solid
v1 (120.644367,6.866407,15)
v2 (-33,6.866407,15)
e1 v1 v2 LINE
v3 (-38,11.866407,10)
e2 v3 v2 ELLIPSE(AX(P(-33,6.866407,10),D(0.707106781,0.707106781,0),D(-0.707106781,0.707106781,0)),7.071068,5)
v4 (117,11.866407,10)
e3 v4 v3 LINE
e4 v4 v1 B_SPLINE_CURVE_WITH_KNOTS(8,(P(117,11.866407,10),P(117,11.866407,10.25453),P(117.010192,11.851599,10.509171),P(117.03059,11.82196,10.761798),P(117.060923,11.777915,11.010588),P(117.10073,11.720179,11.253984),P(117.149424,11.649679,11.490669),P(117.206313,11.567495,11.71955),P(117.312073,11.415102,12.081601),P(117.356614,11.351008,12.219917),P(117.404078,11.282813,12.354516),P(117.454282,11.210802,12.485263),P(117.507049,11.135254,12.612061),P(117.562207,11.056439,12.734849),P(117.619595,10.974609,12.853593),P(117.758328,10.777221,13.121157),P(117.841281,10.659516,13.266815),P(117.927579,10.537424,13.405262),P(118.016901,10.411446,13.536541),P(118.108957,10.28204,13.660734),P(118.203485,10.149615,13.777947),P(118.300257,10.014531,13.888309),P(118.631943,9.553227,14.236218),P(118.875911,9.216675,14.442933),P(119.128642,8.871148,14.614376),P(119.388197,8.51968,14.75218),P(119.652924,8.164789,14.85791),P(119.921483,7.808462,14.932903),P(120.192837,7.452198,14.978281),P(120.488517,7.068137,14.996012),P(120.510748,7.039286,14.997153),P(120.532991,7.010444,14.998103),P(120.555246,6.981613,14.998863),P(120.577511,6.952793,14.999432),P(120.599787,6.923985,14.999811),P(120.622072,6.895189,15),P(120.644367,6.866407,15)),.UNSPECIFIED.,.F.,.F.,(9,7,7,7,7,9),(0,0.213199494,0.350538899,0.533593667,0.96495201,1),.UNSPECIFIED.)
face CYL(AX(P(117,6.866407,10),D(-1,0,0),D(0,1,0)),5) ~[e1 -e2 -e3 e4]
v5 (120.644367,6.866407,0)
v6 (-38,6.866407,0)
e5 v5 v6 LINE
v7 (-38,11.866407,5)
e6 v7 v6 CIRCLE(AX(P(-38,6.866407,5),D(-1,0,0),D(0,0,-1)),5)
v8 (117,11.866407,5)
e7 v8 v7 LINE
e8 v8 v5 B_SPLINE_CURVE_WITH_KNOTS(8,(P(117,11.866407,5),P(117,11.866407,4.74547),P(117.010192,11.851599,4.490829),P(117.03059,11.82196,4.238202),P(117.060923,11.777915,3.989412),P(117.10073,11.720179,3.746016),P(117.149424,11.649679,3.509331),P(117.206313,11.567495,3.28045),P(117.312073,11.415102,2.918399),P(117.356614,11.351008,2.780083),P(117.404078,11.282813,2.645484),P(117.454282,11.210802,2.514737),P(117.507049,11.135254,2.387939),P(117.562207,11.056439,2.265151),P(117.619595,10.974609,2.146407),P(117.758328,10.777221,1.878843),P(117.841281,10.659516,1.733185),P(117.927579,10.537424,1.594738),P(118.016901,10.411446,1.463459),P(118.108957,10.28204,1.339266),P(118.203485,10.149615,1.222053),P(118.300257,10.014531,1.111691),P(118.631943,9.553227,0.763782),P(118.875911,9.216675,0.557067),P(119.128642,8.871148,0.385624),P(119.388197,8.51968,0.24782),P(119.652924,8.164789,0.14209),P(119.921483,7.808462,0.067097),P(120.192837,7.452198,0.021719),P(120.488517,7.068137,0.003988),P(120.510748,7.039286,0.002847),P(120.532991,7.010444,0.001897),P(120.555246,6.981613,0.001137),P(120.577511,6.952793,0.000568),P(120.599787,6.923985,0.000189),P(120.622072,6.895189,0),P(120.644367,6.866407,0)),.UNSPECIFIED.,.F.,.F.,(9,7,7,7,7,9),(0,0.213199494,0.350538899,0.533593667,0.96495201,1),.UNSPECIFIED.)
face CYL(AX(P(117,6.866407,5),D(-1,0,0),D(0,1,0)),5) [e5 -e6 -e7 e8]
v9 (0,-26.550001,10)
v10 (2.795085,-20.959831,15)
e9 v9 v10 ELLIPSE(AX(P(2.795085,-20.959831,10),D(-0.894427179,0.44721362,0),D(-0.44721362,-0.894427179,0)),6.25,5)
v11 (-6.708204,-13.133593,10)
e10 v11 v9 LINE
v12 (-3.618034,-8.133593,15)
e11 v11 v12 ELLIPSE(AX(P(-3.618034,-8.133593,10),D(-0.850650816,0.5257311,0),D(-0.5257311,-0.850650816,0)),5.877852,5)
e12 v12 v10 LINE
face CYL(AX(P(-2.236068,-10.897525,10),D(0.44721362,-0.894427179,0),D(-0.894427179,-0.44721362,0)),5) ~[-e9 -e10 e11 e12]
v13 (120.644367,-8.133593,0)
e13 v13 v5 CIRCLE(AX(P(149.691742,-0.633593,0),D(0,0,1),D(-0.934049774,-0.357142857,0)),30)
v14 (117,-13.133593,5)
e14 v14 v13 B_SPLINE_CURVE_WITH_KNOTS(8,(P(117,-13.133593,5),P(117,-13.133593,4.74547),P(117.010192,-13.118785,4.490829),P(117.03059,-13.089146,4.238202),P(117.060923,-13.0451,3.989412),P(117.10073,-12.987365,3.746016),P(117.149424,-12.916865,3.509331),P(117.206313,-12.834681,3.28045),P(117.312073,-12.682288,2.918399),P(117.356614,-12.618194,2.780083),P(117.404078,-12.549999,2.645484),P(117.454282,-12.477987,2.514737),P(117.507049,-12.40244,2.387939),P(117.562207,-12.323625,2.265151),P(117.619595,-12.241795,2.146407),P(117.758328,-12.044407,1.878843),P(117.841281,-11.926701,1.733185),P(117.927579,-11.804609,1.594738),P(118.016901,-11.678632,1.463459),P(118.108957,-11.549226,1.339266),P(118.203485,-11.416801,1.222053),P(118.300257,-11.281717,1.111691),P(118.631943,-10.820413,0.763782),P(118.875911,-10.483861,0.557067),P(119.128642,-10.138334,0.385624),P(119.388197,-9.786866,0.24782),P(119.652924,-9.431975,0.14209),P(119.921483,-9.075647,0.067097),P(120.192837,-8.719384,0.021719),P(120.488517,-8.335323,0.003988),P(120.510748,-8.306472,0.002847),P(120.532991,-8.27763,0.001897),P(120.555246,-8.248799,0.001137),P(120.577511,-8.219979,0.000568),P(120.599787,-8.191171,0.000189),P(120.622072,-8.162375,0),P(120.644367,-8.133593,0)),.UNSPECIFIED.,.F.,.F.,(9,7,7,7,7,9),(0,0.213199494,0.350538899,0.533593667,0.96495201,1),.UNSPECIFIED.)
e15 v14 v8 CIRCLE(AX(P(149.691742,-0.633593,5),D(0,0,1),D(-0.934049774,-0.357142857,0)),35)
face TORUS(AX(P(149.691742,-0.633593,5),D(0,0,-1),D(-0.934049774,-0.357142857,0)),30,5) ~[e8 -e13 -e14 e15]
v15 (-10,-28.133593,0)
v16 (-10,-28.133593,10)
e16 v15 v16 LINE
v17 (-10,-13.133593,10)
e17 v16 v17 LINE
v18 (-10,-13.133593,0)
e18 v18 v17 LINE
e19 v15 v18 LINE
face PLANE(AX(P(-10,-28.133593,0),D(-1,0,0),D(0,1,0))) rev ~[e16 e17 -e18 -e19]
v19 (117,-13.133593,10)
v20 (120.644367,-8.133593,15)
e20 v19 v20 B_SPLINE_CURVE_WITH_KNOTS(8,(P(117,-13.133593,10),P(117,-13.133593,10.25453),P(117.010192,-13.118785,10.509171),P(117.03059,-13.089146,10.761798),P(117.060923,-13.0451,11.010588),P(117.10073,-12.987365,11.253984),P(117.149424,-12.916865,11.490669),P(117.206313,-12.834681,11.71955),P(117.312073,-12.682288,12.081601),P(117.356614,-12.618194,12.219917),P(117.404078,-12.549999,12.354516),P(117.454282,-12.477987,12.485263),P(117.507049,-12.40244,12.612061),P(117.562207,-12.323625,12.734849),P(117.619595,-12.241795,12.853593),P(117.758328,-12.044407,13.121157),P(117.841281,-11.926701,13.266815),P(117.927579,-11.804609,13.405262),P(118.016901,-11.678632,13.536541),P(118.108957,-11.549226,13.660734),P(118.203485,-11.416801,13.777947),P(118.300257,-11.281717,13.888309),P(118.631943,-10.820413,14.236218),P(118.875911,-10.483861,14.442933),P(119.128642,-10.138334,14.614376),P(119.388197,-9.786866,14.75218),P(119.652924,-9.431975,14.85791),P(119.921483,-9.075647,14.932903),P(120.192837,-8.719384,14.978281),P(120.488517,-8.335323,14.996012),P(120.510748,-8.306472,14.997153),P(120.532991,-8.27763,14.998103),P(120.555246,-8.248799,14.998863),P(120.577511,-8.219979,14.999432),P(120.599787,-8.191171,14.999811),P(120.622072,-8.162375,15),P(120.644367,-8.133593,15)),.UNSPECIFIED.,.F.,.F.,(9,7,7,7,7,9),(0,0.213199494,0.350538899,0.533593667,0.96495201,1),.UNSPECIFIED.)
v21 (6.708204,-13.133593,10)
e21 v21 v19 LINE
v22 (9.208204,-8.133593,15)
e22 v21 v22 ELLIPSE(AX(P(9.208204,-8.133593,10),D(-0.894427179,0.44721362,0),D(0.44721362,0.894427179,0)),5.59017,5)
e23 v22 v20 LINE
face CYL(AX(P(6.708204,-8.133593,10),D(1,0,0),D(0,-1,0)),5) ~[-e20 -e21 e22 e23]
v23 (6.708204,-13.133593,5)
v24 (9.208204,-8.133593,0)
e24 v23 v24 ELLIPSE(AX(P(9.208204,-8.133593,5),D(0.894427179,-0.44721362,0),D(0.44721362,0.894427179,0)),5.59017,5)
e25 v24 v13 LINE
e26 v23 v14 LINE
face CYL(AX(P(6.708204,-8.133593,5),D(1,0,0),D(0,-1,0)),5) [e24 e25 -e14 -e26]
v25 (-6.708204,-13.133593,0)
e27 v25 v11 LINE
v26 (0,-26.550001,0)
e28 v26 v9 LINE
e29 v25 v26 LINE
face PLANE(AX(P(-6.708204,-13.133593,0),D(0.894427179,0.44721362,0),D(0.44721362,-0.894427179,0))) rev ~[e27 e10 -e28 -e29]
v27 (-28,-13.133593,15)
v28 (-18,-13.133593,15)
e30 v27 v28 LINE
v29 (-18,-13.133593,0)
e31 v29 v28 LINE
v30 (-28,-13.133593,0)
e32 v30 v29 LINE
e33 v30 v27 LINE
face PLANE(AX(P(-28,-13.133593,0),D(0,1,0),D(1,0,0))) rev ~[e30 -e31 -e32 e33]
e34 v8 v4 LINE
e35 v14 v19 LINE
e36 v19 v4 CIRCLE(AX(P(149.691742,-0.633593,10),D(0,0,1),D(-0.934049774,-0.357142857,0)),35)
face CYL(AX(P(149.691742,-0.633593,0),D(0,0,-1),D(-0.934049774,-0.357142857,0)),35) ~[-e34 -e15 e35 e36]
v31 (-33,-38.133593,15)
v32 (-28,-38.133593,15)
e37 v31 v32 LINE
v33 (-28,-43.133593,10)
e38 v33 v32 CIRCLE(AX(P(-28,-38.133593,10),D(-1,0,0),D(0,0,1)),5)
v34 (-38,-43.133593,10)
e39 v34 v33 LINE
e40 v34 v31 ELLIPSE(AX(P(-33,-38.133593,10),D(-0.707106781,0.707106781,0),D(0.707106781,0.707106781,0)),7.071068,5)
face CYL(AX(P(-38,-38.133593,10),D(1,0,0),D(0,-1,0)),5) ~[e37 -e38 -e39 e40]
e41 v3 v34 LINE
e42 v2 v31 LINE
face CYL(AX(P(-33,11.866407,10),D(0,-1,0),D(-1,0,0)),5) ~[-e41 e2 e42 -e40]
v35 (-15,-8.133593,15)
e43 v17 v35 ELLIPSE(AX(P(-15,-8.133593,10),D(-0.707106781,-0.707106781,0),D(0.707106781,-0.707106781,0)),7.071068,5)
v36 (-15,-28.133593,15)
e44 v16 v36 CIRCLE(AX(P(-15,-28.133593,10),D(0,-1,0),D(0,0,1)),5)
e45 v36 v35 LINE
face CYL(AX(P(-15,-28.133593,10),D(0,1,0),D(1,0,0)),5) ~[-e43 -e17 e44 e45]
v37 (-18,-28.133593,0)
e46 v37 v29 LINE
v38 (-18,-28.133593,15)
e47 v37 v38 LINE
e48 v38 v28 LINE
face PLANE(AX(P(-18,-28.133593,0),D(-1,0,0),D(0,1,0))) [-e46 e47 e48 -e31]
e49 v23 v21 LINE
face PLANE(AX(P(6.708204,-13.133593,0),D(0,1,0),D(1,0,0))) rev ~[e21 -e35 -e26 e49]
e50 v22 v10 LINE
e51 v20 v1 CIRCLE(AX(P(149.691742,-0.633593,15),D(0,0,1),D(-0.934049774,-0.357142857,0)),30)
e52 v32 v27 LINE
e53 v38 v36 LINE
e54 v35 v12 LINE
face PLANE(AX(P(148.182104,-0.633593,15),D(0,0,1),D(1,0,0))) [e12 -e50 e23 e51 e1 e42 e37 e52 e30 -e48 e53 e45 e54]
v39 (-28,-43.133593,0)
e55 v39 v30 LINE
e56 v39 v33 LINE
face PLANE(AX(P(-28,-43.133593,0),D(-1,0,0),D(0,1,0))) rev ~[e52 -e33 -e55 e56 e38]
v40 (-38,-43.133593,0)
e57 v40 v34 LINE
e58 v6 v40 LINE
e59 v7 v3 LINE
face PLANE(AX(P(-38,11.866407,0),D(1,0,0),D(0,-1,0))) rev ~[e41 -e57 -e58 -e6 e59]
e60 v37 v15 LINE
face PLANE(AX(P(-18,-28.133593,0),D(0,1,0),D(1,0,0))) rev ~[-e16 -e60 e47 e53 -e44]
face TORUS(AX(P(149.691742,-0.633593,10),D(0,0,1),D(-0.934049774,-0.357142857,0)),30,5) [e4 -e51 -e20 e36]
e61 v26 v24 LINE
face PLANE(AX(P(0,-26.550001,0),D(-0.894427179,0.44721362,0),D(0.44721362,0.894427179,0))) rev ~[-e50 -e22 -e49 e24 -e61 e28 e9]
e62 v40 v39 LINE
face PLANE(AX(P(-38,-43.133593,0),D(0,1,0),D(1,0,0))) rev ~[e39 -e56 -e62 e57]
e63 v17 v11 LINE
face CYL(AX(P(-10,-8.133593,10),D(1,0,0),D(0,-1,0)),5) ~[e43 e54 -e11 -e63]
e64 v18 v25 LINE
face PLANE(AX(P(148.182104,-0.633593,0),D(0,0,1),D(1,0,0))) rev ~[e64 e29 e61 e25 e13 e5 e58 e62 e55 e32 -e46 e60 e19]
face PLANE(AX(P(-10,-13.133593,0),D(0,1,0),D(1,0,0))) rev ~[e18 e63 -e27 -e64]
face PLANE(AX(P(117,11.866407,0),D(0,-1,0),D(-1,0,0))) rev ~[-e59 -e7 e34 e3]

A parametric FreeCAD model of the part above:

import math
import FreeCAD as App
import Part
import Sketcher

V = App.Vector
Q = App.Units.Quantity


def edges_at(feature, points):
    """Names of the edges that pass closest to the given points."""
    edges = feature.Shape.Edges
    near = lambda p: min(range(len(edges)), key=lambda i: edges[i].distToShape(Part.Vertex(*p))[0])
    return sorted({f"Edge{near(p) + 1}" for p in points})

doc = App.newDocument("Part")
params = doc.addObject("Spreadsheet::Sheet", "Params")
for row, (alias, value) in enumerate([
    ("sketch1_radius", "35 mm"),
    ("sketch1_width", "155 mm"),
    ("sketch1_width2", "10 mm"),
    ("sketch1_width3", "8 mm"),
    ("sketch1_height", "55 mm"),
    ("pad1_length", "15 mm"),
    ("fillet_radius", "5 mm"),
], start=1):
    params.set(f"A{row}", alias)
    params.set(f"B{row}", "=" + value)
    params.setAlias(f"B{row}", alias)

body = doc.addObject("PartDesign::Body", "Body")

# Sketch on XY plane
sketch1 = doc.addObject("Sketcher::SketchObject", "Sketch")
body.addObject(sketch1)
sketch1.AttachmentSupport = (doc.XY_Plane, [""])
sketch1.MapMode = "FlatFace"
sketch1.addGeometry([
    Part.ArcOfCircle(Part.Circle(V(149.7, -0.6, 0), V(0, 0, 1), 35), math.radians(-159), math.radians(159)),  # 0
    Part.LineSegment(V(117, 11.9, 0), V(-38, 11.9, 0)),  # 1
    Part.LineSegment(V(-38, 11.9, 0), V(-38, -43.1, 0)),  # 2
    Part.LineSegment(V(-38, -43.1, 0), V(-28, -43.1, 0)),  # 3
    Part.LineSegment(V(-28, -43.1, 0), V(-28, -13.1, 0)),  # 4
    Part.LineSegment(V(-28, -13.1, 0), V(-18, -13.1, 0)),  # 5
    Part.LineSegment(V(-18, -13.1, 0), V(-18, -28.1, 0)),  # 6
    Part.LineSegment(V(-18, -28.1, 0), V(-10, -28.1, 0)),  # 7
    Part.LineSegment(V(-10, -28.1, 0), V(-10, -13.1, 0)),  # 8
    Part.LineSegment(V(-10, -13.1, 0), V(-6.7, -13.1, 0)),  # 9
    Part.LineSegment(V(-6.7, -13.1, 0), V(0, -26.6, 0)),  # 10
    Part.LineSegment(V(0, -26.6, 0), V(6.7, -13.1, 0)),  # 11
    Part.LineSegment(V(6.7, -13.1, 0), V(117, -13.1, 0)),  # 12
], False)
sketch1.addConstraint([
    Sketcher.Constraint("Coincident", 0, 2, 1, 1),
    Sketcher.Constraint("Coincident", 1, 2, 2, 1),
    Sketcher.Constraint("Coincident", 2, 2, 3, 1),
    Sketcher.Constraint("Coincident", 3, 2, 4, 1),
    Sketcher.Constraint("Coincident", 4, 2, 5, 1),
    Sketcher.Constraint("Coincident", 5, 2, 6, 1),
    Sketcher.Constraint("Coincident", 6, 2, 7, 1),
    Sketcher.Constraint("Coincident", 7, 2, 8, 1),
    Sketcher.Constraint("Coincident", 8, 2, 9, 1),
    Sketcher.Constraint("Coincident", 9, 2, 10, 1),
    Sketcher.Constraint("Coincident", 10, 2, 11, 1),
    Sketcher.Constraint("Coincident", 11, 2, 12, 1),
    Sketcher.Constraint("Coincident", 12, 2, 0, 1),
    Sketcher.Constraint("Horizontal", 1),
    Sketcher.Constraint("Vertical", 2),
    Sketcher.Constraint("Horizontal", 3),
    Sketcher.Constraint("Vertical", 4),
    Sketcher.Constraint("Horizontal", 5),
    Sketcher.Constraint("Vertical", 6),
    Sketcher.Constraint("Horizontal", 7),
    Sketcher.Constraint("Vertical", 8),
    Sketcher.Constraint("Horizontal", 9),
    Sketcher.Constraint("Horizontal", 12),
    Sketcher.Constraint("Symmetric", 9, 2, 11, 2, -2),
    Sketcher.Constraint("PointOnObject", 10, 2, -2),
    Sketcher.Constraint("Horizontal", 5, 2, 8, 2),
    Sketcher.Constraint("Vertical", 0, 2, 12, 2),
    Sketcher.Constraint("Equal", 3, 5),
    Sketcher.Constraint("Radius", 0, Q("35 mm")),
    Sketcher.Constraint("DistanceX", 1, 2, 1, 1, Q("155 mm")),
    Sketcher.Constraint("DistanceX", 3, 1, 3, 2, Q("10 mm")),
    Sketcher.Constraint("DistanceX", 7, 1, 7, 2, Q("8 mm")),
    Sketcher.Constraint("DistanceY", 2, 2, 2, 1, Q("55 mm")),
    Sketcher.Constraint("DistanceY", 4, 1, 4, 2, Q("30 mm")),
    Sketcher.Constraint("DistanceY", 6, 2, 6, 1, Q("15 mm")),
    Sketcher.Constraint("Distance", 10, Q("15 mm")),
    Sketcher.Constraint("DistanceX", -1, 1, 0, 2, Q("117 mm")),
    Sketcher.Constraint("DistanceY", 10, 2, -1, 1, Q("26.550001 mm")),
    Sketcher.Constraint("DistanceX", 9, 1, 9, 2, Q("3.291796 mm")),
])
sketch1.setExpression("Constraints[28]", "Params.sketch1_radius")
sketch1.setExpression("Constraints[29]", "Params.sketch1_width")
sketch1.setExpression("Constraints[30]", "Params.sketch1_width2")
sketch1.setExpression("Constraints[31]", "Params.sketch1_width3")
sketch1.setExpression("Constraints[32]", "Params.sketch1_height")
pad1 = doc.addObject("PartDesign::Pad", "Pad")
body.addObject(pad1)
pad1.Profile = sketch1
pad1.setExpression("Length", "Params.pad1_length")
doc.recompute()

fillet = doc.addObject("PartDesign::Fillet", "Fillet")
body.addObject(fillet)
fillet.Base = (pad1, edges_at(pad1, [
    (39.5, 11.866, 15),
    (61.854, -13.134, 15),
    (184.692, -0.634, 15),
    (-3.354, -19.842, 15),
    (-8.354, -13.134, 15),
    (-10, -20.634, 15),
    (-33, -43.134, 15),
    (-38, -15.634, 15),
    (39.5, 11.866, 0),
    (184.692, -0.634, 0),
    (61.854, -13.134, 0),
]))
fillet.setExpression("Radius", "Params.fillet_radius")

doc.recompute()
